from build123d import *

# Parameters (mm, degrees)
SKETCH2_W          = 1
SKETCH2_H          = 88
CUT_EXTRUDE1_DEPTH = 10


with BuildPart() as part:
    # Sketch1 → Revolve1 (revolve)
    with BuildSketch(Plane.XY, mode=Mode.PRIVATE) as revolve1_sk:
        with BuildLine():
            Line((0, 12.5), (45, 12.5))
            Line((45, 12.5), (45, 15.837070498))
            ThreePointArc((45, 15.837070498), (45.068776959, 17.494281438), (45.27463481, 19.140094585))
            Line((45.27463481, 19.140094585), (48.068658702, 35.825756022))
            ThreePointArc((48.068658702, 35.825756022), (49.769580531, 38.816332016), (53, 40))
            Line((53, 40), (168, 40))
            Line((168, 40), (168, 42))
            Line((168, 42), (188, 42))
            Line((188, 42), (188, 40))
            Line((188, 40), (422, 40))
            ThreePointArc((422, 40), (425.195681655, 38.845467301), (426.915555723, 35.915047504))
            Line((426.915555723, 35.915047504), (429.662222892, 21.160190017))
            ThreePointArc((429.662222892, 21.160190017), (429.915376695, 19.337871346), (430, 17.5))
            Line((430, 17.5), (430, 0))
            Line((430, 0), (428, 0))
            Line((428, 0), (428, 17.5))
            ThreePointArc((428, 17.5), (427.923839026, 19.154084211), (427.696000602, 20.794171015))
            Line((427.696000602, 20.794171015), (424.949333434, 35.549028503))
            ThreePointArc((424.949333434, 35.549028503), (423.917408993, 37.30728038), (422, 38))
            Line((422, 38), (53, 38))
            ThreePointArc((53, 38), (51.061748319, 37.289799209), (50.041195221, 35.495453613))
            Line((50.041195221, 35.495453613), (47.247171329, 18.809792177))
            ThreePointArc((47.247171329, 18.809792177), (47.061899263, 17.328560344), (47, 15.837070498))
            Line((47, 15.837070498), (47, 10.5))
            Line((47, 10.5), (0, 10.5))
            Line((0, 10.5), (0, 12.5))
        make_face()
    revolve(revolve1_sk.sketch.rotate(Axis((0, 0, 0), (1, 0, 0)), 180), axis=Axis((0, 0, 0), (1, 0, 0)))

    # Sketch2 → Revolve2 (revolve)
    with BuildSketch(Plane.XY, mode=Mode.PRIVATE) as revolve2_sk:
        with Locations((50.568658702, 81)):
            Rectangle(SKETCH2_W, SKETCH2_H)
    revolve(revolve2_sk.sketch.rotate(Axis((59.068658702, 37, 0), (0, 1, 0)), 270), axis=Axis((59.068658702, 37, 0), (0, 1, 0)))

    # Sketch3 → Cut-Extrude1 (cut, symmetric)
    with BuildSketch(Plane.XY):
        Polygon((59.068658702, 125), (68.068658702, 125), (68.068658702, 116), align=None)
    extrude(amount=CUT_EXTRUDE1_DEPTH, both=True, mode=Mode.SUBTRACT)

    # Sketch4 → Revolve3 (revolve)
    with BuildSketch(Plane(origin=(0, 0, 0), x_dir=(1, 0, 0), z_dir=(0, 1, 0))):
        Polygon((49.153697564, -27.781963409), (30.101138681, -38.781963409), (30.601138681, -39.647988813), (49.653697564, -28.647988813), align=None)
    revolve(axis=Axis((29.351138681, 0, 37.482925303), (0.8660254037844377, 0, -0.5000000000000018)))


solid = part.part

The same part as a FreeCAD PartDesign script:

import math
import FreeCAD as App
import Part
import Sketcher
from FreeCAD import Vector
Q = App.Units.Quantity


def add_polygon(sketch, points):
    """Adds a closed chain of lines whose ends are joined by coincident constraints."""
    first, n = sketch.GeometryCount, len(points)
    for a, b in zip(points, points[1:] + points[:1]):
        sketch.addGeometry(Part.LineSegment(App.Vector(*a, 0), App.Vector(*b, 0)), False)
    for i in range(n):
        sketch.addConstraint(Sketcher.Constraint("Coincident", first + i, 2, first + (i + 1) % n, 1))

doc = App.newDocument("Part")
params = doc.addObject("Spreadsheet::Sheet", "Params")
for row, (alias, value) in enumerate([
    ("sketch1_radius", "18 mm"),
    ("sketch1_radius2", "3 mm"),
    ("sketch1_radius3", "20 mm"),
    ("sketch1_width", "45 mm"),
    ("sketch1_width2", "369 mm"),
    ("revolution_angle", "360 deg"),
    ("sketch2_width", "1 mm"),
    ("sketch2_height", "88 mm"),
    ("revolution2_angle", "360 deg"),
    ("sketch3_width", "9 mm"),
    ("pocket1_length", "20 mm"),
    ("sketch4_length", "22 mm"),
    ("sketch4_length2", "1 mm"),
    ("revolution3_angle", "360 deg"),
], start=1):
    params.set(f"A{row}", alias)
    params.set(f"B{row}", "=" + value)
    params.setAlias(f"B{row}", alias)

body = doc.addObject("PartDesign::Body", "Body")

sketch1 = body.newObject("Sketcher::SketchObject", "Sketch")
sketch1.AttachmentSupport = (doc.getObject("XY_Plane"), [""])
sketch1.MapMode = "FlatFace"
sketch1.addGeometry([
    Part.LineSegment(Vector(45, 12.5, 0), Vector(0, 12.5, 0)),
    Part.LineSegment(Vector(0, 12.5, 0), Vector(0, 10.5, 0)),
    Part.LineSegment(Vector(0, 10.5, 0), Vector(47, 10.5, 0)),
    Part.LineSegment(Vector(47, 10.5, 0), Vector(47, 15.83707, 0)),
    Part.ArcOfCircle(Part.Circle(Vector(65, 15.837071, 0), Vector(0, 0, 1), 18), math.radians(170.493982), math.radians(180)),
    Part.LineSegment(Vector(47.247171, 18.809792, 0), Vector(50.041195, 35.495454, 0)),
    Part.ArcOfCircle(Part.Circle(Vector(53, 35, 0), Vector(0, 0, 1), 3), math.radians(90), math.radians(170.493982)),
    Part.LineSegment(Vector(53, 38, 0), Vector(422, 38, 0)),
    Part.ArcOfCircle(Part.Circle(Vector(422, 35, 0), Vector(0, 0, 1), 3), math.radians(10.545104), math.radians(90)),
    Part.LineSegment(Vector(424.949333, 35.549029, 0), Vector(427.696001, 20.794171, 0)),
    Part.ArcOfCircle(Part.Circle(Vector(410, 17.5, 0), Vector(0, 0, 1), 18), math.radians(0), math.radians(10.545104)),
    Part.LineSegment(Vector(428, 17.5, 0), Vector(428, 0, 0)),
    Part.LineSegment(Vector(428, 0, 0), Vector(430, 0, 0)),
    Part.LineSegment(Vector(430, 0, 0), Vector(430, 17.5, 0)),
    Part.ArcOfCircle(Part.Circle(Vector(410, 17.5, 0), Vector(0, 0, 1), 20), math.radians(0), math.radians(10.545104)),
    Part.LineSegment(Vector(429.662223, 21.16019, 0), Vector(426.915556, 35.915048, 0)),
    Part.ArcOfCircle(Part.Circle(Vector(422, 35, 0), Vector(0, 0, 1), 5), math.radians(10.545104), math.radians(90)),
    Part.LineSegment(Vector(422, 40, 0), Vector(188, 40, 0)),
    Part.LineSegment(Vector(188, 40, 0), Vector(188, 42, 0)),
    Part.LineSegment(Vector(188, 42, 0), Vector(168, 42, 0)),
    Part.LineSegment(Vector(168, 42, 0), Vector(168, 40, 0)),
    Part.LineSegment(Vector(168, 40, 0), Vector(53, 40, 0)),
    Part.ArcOfCircle(Part.Circle(Vector(53, 35, 0), Vector(0, 0, 1), 5), math.radians(90), math.radians(170.493982)),
    Part.LineSegment(Vector(48.068659, 35.825756, 0), Vector(45.274635, 19.140095, 0)),
    Part.ArcOfCircle(Part.Circle(Vector(65, 15.837071, 0), Vector(0, 0, 1), 20), math.radians(170.493982), math.radians(180)),
    Part.LineSegment(Vector(45, 15.83707, 0), Vector(45, 12.5, 0)),
], False)
sketch1.addConstraint([
    Sketcher.Constraint("Coincident", 0, 2, 1, 1),
    Sketcher.Constraint("Coincident", 1, 2, 2, 1),
    Sketcher.Constraint("Coincident", 2, 2, 3, 1),
    Sketcher.Constraint("Tangent", 3, 2, 4, 2),
    Sketcher.Constraint("Tangent", 4, 1, 5, 1),
    Sketcher.Constraint("Tangent", 5, 2, 6, 2),
    Sketcher.Constraint("Tangent", 6, 1, 7, 1),
    Sketcher.Constraint("Tangent", 7, 2, 8, 2),
    Sketcher.Constraint("Tangent", 8, 1, 9, 1),
    Sketcher.Constraint("Tangent", 9, 2, 10, 2),
    Sketcher.Constraint("Tangent", 10, 1, 11, 1),
    Sketcher.Constraint("Coincident", 11, 2, 12, 1),
    Sketcher.Constraint("Coincident", 12, 2, 13, 1),
    Sketcher.Constraint("Tangent", 13, 2, 14, 1),
    Sketcher.Constraint("Tangent", 14, 2, 15, 1),
    Sketcher.Constraint("Tangent", 15, 2, 16, 1),
    Sketcher.Constraint("Tangent", 16, 2, 17, 1),
    Sketcher.Constraint("Coincident", 17, 2, 18, 1),
    Sketcher.Constraint("Coincident", 18, 2, 19, 1),
    Sketcher.Constraint("Coincident", 19, 2, 20, 1),
    Sketcher.Constraint("Coincident", 20, 2, 21, 1),
    Sketcher.Constraint("Tangent", 21, 2, 22, 1),
    Sketcher.Constraint("Tangent", 22, 2, 23, 1),
    Sketcher.Constraint("Tangent", 23, 2, 24, 1),
    Sketcher.Constraint("Tangent", 24, 2, 25, 1),
    Sketcher.Constraint("Coincident", 25, 2, 0, 1),
    Sketcher.Constraint("Horizontal", 0),
    Sketcher.Constraint("Vertical", 1),
    Sketcher.Constraint("Horizontal", 2),
    Sketcher.Constraint("Vertical", 3),
    Sketcher.Constraint("Horizontal", 7),
    Sketcher.Constraint("Vertical", 11),
    Sketcher.Constraint("Horizontal", 12),
    Sketcher.Constraint("Vertical", 13),
    Sketcher.Constraint("Horizontal", 17),
    Sketcher.Constraint("Vertical", 18),
    Sketcher.Constraint("Horizontal", 19),
    Sketcher.Constraint("Vertical", 20),
    Sketcher.Constraint("Horizontal", 21),
    Sketcher.Constraint("Vertical", 25),
    Sketcher.Constraint("Coincident", 14, 3, 10, 3),
    Sketcher.Constraint("Coincident", 16, 3, 8, 3),
    Sketcher.Constraint("Coincident", 22, 3, 6, 3),
    Sketcher.Constraint("Coincident", 24, 3, 4, 3),
    Sketcher.Constraint("Equal", 6, 8),
    Sketcher.Constraint("Equal", 4, 10),
    Sketcher.Constraint("Equal", 16, 22),
    Sketcher.Constraint("Equal", 14, 24),
    Sketcher.Constraint("PointOnObject", 0, 2, -2),
    Sketcher.Constraint("PointOnObject", 11, 2, -1),
    Sketcher.Constraint("Parallel", 9, 15),
    Sketcher.Constraint("Equal", 12, 1),
    Sketcher.Constraint("Equal", 1, 18),
    Sketcher.Constraint("Radius", 4, Q("18 mm")),
    Sketcher.Constraint("Radius", 6, Q("3 mm")),
    Sketcher.Constraint("Radius", 14, Q("20 mm")),
    Sketcher.Constraint("DistanceX", 0, 2, 0, 1, Q("45 mm")),
    Sketcher.Constraint("DistanceX", 7, 1, 7, 2, Q("369 mm")),
    Sketcher.Constraint("DistanceX", 17, 2, 17, 1, Q("234 mm")),
    Sketcher.Constraint("DistanceX", 19, 2, 19, 1, Q("20 mm")),
    Sketcher.Constraint("DistanceY", 11, 2, 11, 1, Q("17.5 mm")),
    Sketcher.Constraint("DistanceX", -1, 1, 6, 3, Q("53 mm")),
    Sketcher.Constraint("DistanceY", -1, 1, 6, 3, Q("35 mm")),
    Sketcher.Constraint("DistanceX", -1, 1, 10, 3, Q("410 mm")),
    Sketcher.Constraint("DistanceY", 0, 2, 14, 3, Q("5 mm")),
    Sketcher.Constraint("DistanceY", 3, 1, 3, 2, Q("5.33707 mm")),
])
sketch1.setExpression("Constraints[53]", "Params.sketch1_radius")
sketch1.setExpression("Constraints[54]", "Params.sketch1_radius2")
sketch1.setExpression("Constraints[55]", "Params.sketch1_radius3")
sketch1.setExpression("Constraints[56]", "Params.sketch1_width")
sketch1.setExpression("Constraints[57]", "Params.sketch1_width2")
revolution = body.newObject("PartDesign::Revolution", "Revolution")
revolution.Profile = sketch1
revolution.ReferenceAxis = (sketch1, ["H_Axis"])
revolution.setExpression("Angle", "Params.revolution_angle")

sketch2 = body.newObject("Sketcher::SketchObject", "Sketch001")
sketch2.AttachmentSupport = (doc.getObject("XY_Plane"), [""])
sketch2.MapMode = "FlatFace"
add_polygon(sketch2, [(50.068659, 125), (50.068659, 37), (51.068659, 37), (51.068659, 125)])
sketch2.addGeometry(Part.LineSegment(Vector(59.068659, 37, 0), Vector(59.068659, 125, 0)), True)
sketch2.addConstraint([
    Sketcher.Constraint("Vertical", 0),
    Sketcher.Constraint("Horizontal", 1),
    Sketcher.Constraint("Vertical", 2),
    Sketcher.Constraint("Horizontal", 3),
    Sketcher.Constraint("Vertical", 4),
    Sketcher.Constraint("Horizontal", 1, 2, 4, 1),
    Sketcher.Constraint("Horizontal", 3, 2, 4, 2),
    Sketcher.Constraint("DistanceX", 1, 1, 1, 2, Q("1 mm")),
    Sketcher.Constraint("DistanceY", 0, 2, 0, 1, Q("88 mm")),
    Sketcher.Constraint("DistanceY", -1, 1, 0, 2, Q("37 mm")),
    Sketcher.Constraint("DistanceX", 1, 2, 4, 1, Q("8 mm")),
    Sketcher.Constraint("DistanceX", -1, 1, 0, 2, Q("50.068659 mm")),
])
sketch2.setExpression("Constraints[11]", "Params.sketch2_width")
sketch2.setExpression("Constraints[12]", "Params.sketch2_height")
revolution2 = body.newObject("PartDesign::Revolution", "Revolution001")
revolution2.Profile = sketch2
revolution2.ReferenceAxis = (sketch2, ["Axis0"])
revolution2.setExpression("Angle", "Params.revolution2_angle")

sketch3 = body.newObject("Sketcher::SketchObject", "Sketch002")
sketch3.AttachmentSupport = (doc.getObject("XY_Plane"), [""])
sketch3.MapMode = "FlatFace"
add_polygon(sketch3, [(68.068659, 125), (59.068659, 125), (68.068659, 116)])
sketch3.addConstraint([
    Sketcher.Constraint("Horizontal", 0),
    Sketcher.Constraint("Vertical", 2),
    Sketcher.Constraint("Equal", 0, 2),
    Sketcher.Constraint("DistanceX", 0, 2, 0, 1, Q("9 mm")),
    Sketcher.Constraint("DistanceY", -1, 1, 0, 2, Q("125 mm")),
    Sketcher.Constraint("DistanceX", -1, 1, 0, 2, Q("59.068659 mm")),
])
sketch3.setExpression("Constraints[6]", "Params.sketch3_width")
pocket1 = body.newObject("PartDesign::Pocket", "Pocket")
pocket1.Profile = sketch3
pocket1.setExpression("Length", "Params.pocket1_length")
pocket1.Midplane = True

sketch4 = body.newObject("Sketcher::SketchObject", "Sketch003")
sketch4.AttachmentSupport = (doc.getObject("XZ_Plane"), [""])
sketch4.MapMode = "FlatFace"
add_polygon(sketch4, [(49.153698, 27.781963), (30.101139, 38.781963), (30.601139, 39.647989), (49.653698, 28.647989)])
sketch4.addGeometry(Part.LineSegment(Vector(29.351139, 37.482925, 0), Vector(48.403698, 26.482925, 0)), True)
sketch4.addConstraint([
    Sketcher.Constraint("Perpendicular", 0, 1),
    Sketcher.Constraint("Perpendicular", 1, 2),
    Sketcher.Constraint("Perpendicular", 2, 3),
    Sketcher.Constraint("Perpendicular", 3, 4),
    Sketcher.Constraint("Equal", 2, 4),
    Sketcher.Constraint("Angle", 0, Q("150 deg")),
    Sketcher.Constraint("Distance", 0, Q("22 mm")),
    Sketcher.Constraint("Distance", 1, Q("1 mm")),
    Sketcher.Constraint("DistanceX", 4, 1, 0, 2, Q("0.75 mm")),
    Sketcher.Constraint("DistanceX", -1, 1, 0, 2, Q("30.101139 mm")),
    Sketcher.Constraint("DistanceY", -1, 1, 1, 2, Q("39.647989 mm")),
    Sketcher.Constraint("DistanceY", 4, 1, 0, 2, Q("1.299038 mm")),
])
sketch4.setExpression("Constraints[10]", "Params.sketch4_length")
sketch4.setExpression("Constraints[11]", "Params.sketch4_length2")
revolution3 = body.newObject("PartDesign::Revolution", "Revolution002")
revolution3.Profile = sketch4
revolution3.ReferenceAxis = (sketch4, ["Axis0"])
revolution3.setExpression("Angle", "Params.revolution3_angle")

doc.recompute()
